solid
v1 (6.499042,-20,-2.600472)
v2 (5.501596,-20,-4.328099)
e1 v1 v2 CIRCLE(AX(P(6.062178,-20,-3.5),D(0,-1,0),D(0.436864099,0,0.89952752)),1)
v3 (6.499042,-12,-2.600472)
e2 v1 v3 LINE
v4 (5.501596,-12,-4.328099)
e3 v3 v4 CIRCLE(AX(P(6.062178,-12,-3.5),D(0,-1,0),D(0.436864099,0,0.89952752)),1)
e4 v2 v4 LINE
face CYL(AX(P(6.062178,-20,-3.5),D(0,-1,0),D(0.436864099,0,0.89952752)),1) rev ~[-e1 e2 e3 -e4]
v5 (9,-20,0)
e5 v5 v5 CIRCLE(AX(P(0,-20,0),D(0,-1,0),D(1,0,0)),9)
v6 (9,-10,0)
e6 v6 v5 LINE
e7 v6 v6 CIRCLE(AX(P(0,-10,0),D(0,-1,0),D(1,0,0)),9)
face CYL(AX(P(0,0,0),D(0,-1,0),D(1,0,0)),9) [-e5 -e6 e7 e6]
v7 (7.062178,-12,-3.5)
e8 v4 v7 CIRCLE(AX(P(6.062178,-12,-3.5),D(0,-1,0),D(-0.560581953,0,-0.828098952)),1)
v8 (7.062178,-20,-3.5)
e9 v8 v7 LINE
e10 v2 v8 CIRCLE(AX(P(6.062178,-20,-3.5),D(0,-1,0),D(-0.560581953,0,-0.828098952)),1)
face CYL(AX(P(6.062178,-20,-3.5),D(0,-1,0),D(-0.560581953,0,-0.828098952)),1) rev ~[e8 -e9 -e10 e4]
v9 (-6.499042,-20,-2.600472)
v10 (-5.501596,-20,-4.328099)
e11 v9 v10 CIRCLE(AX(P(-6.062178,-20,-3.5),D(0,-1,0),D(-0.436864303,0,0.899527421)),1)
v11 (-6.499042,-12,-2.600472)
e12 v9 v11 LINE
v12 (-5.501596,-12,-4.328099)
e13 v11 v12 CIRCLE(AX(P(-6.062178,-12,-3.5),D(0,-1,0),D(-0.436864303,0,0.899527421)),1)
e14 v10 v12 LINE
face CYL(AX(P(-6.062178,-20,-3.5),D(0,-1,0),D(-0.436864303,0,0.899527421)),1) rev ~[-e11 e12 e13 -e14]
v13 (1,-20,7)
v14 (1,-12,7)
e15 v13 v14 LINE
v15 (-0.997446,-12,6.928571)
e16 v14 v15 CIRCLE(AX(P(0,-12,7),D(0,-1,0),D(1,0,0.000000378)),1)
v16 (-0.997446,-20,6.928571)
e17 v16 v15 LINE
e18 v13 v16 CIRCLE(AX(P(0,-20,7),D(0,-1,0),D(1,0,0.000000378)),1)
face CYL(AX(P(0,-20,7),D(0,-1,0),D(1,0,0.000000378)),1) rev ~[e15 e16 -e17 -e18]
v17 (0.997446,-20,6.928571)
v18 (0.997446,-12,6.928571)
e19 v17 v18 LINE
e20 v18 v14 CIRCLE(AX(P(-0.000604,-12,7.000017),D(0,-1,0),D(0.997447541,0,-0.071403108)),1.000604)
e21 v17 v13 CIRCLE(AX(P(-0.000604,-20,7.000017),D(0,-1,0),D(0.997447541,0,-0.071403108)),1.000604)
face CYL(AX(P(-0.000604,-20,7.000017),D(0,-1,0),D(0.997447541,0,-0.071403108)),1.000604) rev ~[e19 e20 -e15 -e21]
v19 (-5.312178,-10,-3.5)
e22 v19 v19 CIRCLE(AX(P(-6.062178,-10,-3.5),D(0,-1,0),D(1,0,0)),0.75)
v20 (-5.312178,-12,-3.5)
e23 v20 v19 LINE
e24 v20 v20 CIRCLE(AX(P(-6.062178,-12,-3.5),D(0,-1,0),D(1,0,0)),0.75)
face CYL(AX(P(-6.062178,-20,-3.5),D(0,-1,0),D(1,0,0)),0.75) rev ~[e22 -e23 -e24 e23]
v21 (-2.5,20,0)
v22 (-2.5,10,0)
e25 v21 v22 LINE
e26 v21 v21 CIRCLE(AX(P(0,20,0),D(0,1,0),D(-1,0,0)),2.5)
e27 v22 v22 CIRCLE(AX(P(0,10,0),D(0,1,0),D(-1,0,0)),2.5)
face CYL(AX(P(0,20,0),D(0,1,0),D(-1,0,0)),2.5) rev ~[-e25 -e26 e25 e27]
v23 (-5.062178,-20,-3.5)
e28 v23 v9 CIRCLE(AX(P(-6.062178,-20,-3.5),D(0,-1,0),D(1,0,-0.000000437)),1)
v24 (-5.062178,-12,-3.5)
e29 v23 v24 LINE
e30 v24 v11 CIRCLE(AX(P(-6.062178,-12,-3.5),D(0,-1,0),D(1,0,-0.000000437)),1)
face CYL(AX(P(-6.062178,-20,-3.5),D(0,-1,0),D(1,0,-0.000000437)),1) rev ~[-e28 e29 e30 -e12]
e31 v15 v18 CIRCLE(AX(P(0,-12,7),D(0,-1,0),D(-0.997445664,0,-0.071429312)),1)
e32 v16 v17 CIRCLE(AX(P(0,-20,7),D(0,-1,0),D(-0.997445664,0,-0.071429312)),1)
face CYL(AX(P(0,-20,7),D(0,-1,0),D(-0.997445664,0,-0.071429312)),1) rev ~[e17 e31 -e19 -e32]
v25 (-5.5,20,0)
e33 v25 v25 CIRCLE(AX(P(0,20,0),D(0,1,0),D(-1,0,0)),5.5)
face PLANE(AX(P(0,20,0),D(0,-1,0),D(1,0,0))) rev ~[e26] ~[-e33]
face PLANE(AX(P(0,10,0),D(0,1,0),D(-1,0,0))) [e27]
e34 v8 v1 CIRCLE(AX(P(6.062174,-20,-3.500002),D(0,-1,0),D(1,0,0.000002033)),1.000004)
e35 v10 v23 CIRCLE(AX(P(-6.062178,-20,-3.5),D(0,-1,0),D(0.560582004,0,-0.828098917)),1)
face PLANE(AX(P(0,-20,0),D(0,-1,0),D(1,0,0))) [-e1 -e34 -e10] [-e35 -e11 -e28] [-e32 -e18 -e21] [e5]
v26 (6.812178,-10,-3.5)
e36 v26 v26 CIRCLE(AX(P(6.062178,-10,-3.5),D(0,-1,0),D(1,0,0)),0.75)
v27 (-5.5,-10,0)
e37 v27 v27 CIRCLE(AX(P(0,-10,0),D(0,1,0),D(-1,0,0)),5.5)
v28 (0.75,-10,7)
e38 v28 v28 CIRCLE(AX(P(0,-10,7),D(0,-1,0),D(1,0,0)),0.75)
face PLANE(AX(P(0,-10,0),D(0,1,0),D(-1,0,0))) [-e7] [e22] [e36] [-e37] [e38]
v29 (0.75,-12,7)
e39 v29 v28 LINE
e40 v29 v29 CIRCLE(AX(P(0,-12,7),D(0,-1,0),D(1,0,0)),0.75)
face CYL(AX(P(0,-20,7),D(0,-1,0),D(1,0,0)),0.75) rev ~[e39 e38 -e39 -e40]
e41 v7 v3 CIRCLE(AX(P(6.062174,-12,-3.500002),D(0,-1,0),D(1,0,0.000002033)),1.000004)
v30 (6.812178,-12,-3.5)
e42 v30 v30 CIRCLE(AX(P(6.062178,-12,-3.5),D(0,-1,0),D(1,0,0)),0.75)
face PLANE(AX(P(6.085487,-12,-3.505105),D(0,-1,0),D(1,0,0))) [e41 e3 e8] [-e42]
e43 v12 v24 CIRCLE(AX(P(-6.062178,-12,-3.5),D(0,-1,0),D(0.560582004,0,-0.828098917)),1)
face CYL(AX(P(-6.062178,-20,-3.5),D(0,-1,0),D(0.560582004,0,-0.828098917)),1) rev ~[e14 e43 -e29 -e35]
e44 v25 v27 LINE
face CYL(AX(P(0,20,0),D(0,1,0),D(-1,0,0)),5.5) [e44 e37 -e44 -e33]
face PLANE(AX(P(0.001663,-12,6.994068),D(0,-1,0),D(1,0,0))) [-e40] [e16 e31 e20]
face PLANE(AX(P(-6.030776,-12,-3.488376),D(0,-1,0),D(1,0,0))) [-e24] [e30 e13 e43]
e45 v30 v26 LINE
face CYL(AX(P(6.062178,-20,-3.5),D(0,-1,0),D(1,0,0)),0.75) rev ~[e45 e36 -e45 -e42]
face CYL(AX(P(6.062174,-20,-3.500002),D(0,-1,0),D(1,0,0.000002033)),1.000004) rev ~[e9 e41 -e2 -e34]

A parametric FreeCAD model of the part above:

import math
import FreeCAD as App
import Part
import Sketcher
from FreeCAD import Vector

doc = App.newDocument("Part")
body = doc.addObject("PartDesign::Body", "Body")

# Sketch on XZ plane
sketch1 = body.newObject("Sketcher::SketchObject", "Sketch")
sketch1.AttachmentSupport = (doc.getObject("XZ_Plane"), [""])
sketch1.MapMode = "FlatFace"
sketch1.addGeometry(Part.Circle(Vector(0, 0, 0), Vector(0, 0, 1), 9), False)
sketch1.addConstraint([
    Sketcher.Constraint("Coincident", 0, 3, -1, 1),
    Sketcher.Constraint("Diameter", 0, 18.0),
])
pad1 = body.newObject("PartDesign::Pad", "Pad")
pad1.Profile = sketch1
pad1.Length = 40
pad1.Midplane = True

# Sketch on XZ plane
sketch2 = body.newObject("Sketcher::SketchObject", "Sketch001")
sketch2.AttachmentSupport = (doc.getObject("XZ_Plane"), [""])
sketch2.MapMode = "FlatFace"
sketch2.AttachmentOffset = App.Placement(Vector(0, 0, 20), App.Rotation())
sketch2.addGeometry([
    Part.ArcOfCircle(Part.Circle(Vector(0, 7, 0), Vector(0, 0, 1), 1), math.radians(0.000022), math.radians(184.096046)),  # 0
    Part.ArcOfCircle(Part.Circle(Vector(0, 7, 0), Vector(0, 0, 1), 1), math.radians(-175.903914), math.radians(-4.096086)),  # 1
    Part.ArcOfCircle(Part.Circle(Vector(-0.000604, 7.000017, 0), Vector(0, 0, 1), 1.000604), math.radians(-4.094581), math.radians(-0.000985)),  # 2
    Part.Circle(Vector(0, 7, 0), Vector(0, 0, 1), 0.75),  # 3
    Part.ArcOfCircle(Part.Circle(Vector(-6.062178, -3.5, 0), Vector(0, 0, 1), 1), math.radians(-0.000025), math.radians(115.903963)),  # 4
    Part.ArcOfCircle(Part.Circle(Vector(-6.062178, -3.5, 0), Vector(0, 0, 1), 1), math.radians(115.903982), math.radians(304.096022)),  # 5
    Part.ArcOfCircle(Part.Circle(Vector(-6.062178, -3.5, 0), Vector(0, 0, 1), 1), math.radians(-55.903943), math.radians(0.000004)),  # 6
    Part.Circle(Vector(-6.062178, -3.5, 0), Vector(0, 0, 1), 0.75),  # 7
    Part.ArcOfCircle(Part.Circle(Vector(6.062174, -3.500002, 0), Vector(0, 0, 1), 1.000004), math.radians(0.000116), math.radians(64.095896)),  # 8
    Part.ArcOfCircle(Part.Circle(Vector(6.062178, -3.5, 0), Vector(0, 0, 1), 1), math.radians(64.096031), math.radians(235.903965)),  # 9
    Part.ArcOfCircle(Part.Circle(Vector(6.062178, -3.5, 0), Vector(0, 0, 1), 1), math.radians(-124.096053), math.radians(0.000001)),  # 10
    Part.Circle(Vector(6.062178, -3.5, 0), Vector(0, 0, 1), 0.75),  # 11
], False)
sketch2.addConstraint([
    Sketcher.Constraint("Tangent", 0, 2, 1, 1),
    Sketcher.Constraint("Coincident", 1, 2, 2, 1),
    Sketcher.Constraint("Coincident", 2, 2, 0, 1),
    Sketcher.Constraint("Tangent", 4, 2, 5, 1),
    Sketcher.Constraint("Tangent", 5, 2, 6, 1),
    Sketcher.Constraint("Tangent", 6, 2, 4, 1),
    Sketcher.Constraint("Coincident", 8, 2, 9, 1),
    Sketcher.Constraint("Tangent", 9, 2, 10, 1),
    Sketcher.Constraint("Coincident", 10, 2, 8, 1),
    Sketcher.Constraint("Coincident", 3, 3, 0, 3),
    Sketcher.Constraint("Coincident", 7, 3, 4, 3),
    Sketcher.Constraint("Coincident", 9, 3, 8, 3),
    Sketcher.Constraint("Coincident", 11, 3, 8, 3),
    Sketcher.Constraint("Equal", 0, 1),
    Sketcher.Constraint("Equal", 1, 4),
    Sketcher.Constraint("Equal", 3, 7),
    Sketcher.Constraint("Equal", 6, 9),
    Sketcher.Constraint("Equal", 7, 11),
    Sketcher.Constraint("Symmetric", 4, 3, 8, 3, -2),
    Sketcher.Constraint("Symmetric", 0, 2, 1, 2, -2),
    Sketcher.Constraint("Horizontal", 3, 3, 2, 2),
    Sketcher.Constraint("Horizontal", 11, 3, 6, 2),
    Sketcher.Constraint("Horizontal", 4, 2, 8, 2),
    Sketcher.Constraint("Horizontal", 5, 2, 9, 2),
    Sketcher.Constraint("Horizontal", 6, 2, 10, 2),
    Sketcher.Constraint("Radius", 0, 1.0),
    Sketcher.Constraint("Diameter", 3, 1.5),
    Sketcher.Constraint("DistanceY", -1, 1, 0, 3, 7.0),
    Sketcher.Constraint("DistanceY", 4, 3, -1, 1, 3.5),
    Sketcher.Constraint("Radius", 2, 1.000604),
    Sketcher.Constraint("DistanceY", 5, 2, -1, 1, 4.328099),
    Sketcher.Constraint("DistanceX", 6, 3, -1, 1, 6.062178),
    Sketcher.Constraint("DistanceY", -1, 1, 0, 2, 6.928571),
    Sketcher.Constraint("DistanceY", 4, 2, -1, 1, 2.600472),
])
pocket1 = body.newObject("PartDesign::Pocket", "Pocket")
pocket1.Profile = sketch2
pocket1.Length = 8

# Sketch on XZ plane
sketch3 = body.newObject("Sketcher::SketchObject", "Sketch002")
sketch3.AttachmentSupport = (doc.getObject("XZ_Plane"), [""])
sketch3.MapMode = "FlatFace"
sketch3.AttachmentOffset = App.Placement(Vector(0, 0, -20), App.Rotation())
sketch3.addGeometry([
    Part.Circle(Vector(0, 0, 0), Vector(0, 0, 1), 9),
    Part.Circle(Vector(0, 0, 0), Vector(0, 0, 1), 5.5),
], False)
sketch3.addConstraint([
    Sketcher.Constraint("Coincident", 0, 3, -1, 1),
    Sketcher.Constraint("Coincident", 1, 3, -1, 1),
    Sketcher.Constraint("Diameter", 0, 18.0),
    Sketcher.Constraint("Diameter", 1, 11.0),
])
pocket2 = body.newObject("PartDesign::Pocket", "Pocket001")
pocket2.Profile = sketch3
pocket2.Length = 30
pocket2.Reversed = True

# Sketch on XZ plane
sketch4 = body.newObject("Sketcher::SketchObject", "Sketch003")
sketch4.AttachmentSupport = (doc.getObject("XZ_Plane"), [""])
sketch4.MapMode = "FlatFace"
sketch4.AttachmentOffset = App.Placement(Vector(0, 0, 20), App.Rotation())
sketch4.addGeometry([
    Part.Circle(Vector(-6.062178, -3.5, 0), Vector(0, 0, 1), 0.75),
    Part.Circle(Vector(0, 7, 0), Vector(0, 0, 1), 0.75),
    Part.Circle(Vector(6.062178, -3.5, 0), Vector(0, 0, 1), 0.75),
], False)
sketch4.addConstraint([
    Sketcher.Constraint("Equal", 0, 1),
    Sketcher.Constraint("Equal", 1, 2),
    Sketcher.Constraint("Symmetric", 0, 3, 2, 3, -2),
    Sketcher.Constraint("PointOnObject", 1, 3, -2),
    Sketcher.Constraint("Diameter", 0, 1.5),
    Sketcher.Constraint("DistanceY", -1, 1, 1, 3, 7.0),
    Sketcher.Constraint("DistanceY", 0, 3, -1, 1, 3.5),
    Sketcher.Constraint("DistanceX", 0, 3, -1, 1, 6.062178),
])
pocket3 = body.newObject("PartDesign::Pocket", "Pocket002")
pocket3.Profile = sketch4
pocket3.Length = 10

# Sketch on XZ plane
sketch5 = body.newObject("Sketcher::SketchObject", "Sketch004")
sketch5.AttachmentSupport = (doc.getObject("XZ_Plane"), [""])
sketch5.MapMode = "FlatFace"
sketch5.AttachmentOffset = App.Placement(Vector(0, 0, -20), App.Rotation())
sketch5.addGeometry(Part.Circle(Vector(0, 0, 0), Vector(0, 0, 1), 2.5), False)
sketch5.addConstraint([
    Sketcher.Constraint("Coincident", 0, 3, -1, 1),
    Sketcher.Constraint("Diameter", 0, 5.0),
])
pocket4 = body.newObject("PartDesign::Pocket", "Pocket003")
pocket4.Profile = sketch5
pocket4.Length = 10
pocket4.Reversed = True

doc.recompute()
